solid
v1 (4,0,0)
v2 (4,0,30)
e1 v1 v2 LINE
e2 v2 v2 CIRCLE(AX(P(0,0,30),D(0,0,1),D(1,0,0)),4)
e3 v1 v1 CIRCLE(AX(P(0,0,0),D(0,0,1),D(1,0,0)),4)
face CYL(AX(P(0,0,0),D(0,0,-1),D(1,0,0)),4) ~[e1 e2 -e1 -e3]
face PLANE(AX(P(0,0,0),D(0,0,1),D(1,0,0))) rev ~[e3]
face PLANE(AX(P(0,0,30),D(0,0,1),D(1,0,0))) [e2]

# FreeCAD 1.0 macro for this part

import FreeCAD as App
import Part
import Sketcher
Q = App.Units.Quantity

doc = App.newDocument("Part")
body = doc.addObject("PartDesign::Body", "Body")

sketch1 = body.newObject("Sketcher::SketchObject", "Sketch")
sketch1.AttachmentSupport = (doc.getObject("XY_Plane"), [""])
sketch1.MapMode = "FlatFace"
sketch1.addGeometry(Part.Circle(App.Vector(0, 0, 0), App.Vector(0, 0, 1), 4), False)
sketch1.addConstraint([
    Sketcher.Constraint("Coincident", 0, 3, -1, 1),
    Sketcher.Constraint("Diameter", 0, Q("8 mm")),
])
pad1 = body.newObject("PartDesign::Pad", "Pad")
pad1.Profile = sketch1
pad1.Length = 30

doc.recompute()
